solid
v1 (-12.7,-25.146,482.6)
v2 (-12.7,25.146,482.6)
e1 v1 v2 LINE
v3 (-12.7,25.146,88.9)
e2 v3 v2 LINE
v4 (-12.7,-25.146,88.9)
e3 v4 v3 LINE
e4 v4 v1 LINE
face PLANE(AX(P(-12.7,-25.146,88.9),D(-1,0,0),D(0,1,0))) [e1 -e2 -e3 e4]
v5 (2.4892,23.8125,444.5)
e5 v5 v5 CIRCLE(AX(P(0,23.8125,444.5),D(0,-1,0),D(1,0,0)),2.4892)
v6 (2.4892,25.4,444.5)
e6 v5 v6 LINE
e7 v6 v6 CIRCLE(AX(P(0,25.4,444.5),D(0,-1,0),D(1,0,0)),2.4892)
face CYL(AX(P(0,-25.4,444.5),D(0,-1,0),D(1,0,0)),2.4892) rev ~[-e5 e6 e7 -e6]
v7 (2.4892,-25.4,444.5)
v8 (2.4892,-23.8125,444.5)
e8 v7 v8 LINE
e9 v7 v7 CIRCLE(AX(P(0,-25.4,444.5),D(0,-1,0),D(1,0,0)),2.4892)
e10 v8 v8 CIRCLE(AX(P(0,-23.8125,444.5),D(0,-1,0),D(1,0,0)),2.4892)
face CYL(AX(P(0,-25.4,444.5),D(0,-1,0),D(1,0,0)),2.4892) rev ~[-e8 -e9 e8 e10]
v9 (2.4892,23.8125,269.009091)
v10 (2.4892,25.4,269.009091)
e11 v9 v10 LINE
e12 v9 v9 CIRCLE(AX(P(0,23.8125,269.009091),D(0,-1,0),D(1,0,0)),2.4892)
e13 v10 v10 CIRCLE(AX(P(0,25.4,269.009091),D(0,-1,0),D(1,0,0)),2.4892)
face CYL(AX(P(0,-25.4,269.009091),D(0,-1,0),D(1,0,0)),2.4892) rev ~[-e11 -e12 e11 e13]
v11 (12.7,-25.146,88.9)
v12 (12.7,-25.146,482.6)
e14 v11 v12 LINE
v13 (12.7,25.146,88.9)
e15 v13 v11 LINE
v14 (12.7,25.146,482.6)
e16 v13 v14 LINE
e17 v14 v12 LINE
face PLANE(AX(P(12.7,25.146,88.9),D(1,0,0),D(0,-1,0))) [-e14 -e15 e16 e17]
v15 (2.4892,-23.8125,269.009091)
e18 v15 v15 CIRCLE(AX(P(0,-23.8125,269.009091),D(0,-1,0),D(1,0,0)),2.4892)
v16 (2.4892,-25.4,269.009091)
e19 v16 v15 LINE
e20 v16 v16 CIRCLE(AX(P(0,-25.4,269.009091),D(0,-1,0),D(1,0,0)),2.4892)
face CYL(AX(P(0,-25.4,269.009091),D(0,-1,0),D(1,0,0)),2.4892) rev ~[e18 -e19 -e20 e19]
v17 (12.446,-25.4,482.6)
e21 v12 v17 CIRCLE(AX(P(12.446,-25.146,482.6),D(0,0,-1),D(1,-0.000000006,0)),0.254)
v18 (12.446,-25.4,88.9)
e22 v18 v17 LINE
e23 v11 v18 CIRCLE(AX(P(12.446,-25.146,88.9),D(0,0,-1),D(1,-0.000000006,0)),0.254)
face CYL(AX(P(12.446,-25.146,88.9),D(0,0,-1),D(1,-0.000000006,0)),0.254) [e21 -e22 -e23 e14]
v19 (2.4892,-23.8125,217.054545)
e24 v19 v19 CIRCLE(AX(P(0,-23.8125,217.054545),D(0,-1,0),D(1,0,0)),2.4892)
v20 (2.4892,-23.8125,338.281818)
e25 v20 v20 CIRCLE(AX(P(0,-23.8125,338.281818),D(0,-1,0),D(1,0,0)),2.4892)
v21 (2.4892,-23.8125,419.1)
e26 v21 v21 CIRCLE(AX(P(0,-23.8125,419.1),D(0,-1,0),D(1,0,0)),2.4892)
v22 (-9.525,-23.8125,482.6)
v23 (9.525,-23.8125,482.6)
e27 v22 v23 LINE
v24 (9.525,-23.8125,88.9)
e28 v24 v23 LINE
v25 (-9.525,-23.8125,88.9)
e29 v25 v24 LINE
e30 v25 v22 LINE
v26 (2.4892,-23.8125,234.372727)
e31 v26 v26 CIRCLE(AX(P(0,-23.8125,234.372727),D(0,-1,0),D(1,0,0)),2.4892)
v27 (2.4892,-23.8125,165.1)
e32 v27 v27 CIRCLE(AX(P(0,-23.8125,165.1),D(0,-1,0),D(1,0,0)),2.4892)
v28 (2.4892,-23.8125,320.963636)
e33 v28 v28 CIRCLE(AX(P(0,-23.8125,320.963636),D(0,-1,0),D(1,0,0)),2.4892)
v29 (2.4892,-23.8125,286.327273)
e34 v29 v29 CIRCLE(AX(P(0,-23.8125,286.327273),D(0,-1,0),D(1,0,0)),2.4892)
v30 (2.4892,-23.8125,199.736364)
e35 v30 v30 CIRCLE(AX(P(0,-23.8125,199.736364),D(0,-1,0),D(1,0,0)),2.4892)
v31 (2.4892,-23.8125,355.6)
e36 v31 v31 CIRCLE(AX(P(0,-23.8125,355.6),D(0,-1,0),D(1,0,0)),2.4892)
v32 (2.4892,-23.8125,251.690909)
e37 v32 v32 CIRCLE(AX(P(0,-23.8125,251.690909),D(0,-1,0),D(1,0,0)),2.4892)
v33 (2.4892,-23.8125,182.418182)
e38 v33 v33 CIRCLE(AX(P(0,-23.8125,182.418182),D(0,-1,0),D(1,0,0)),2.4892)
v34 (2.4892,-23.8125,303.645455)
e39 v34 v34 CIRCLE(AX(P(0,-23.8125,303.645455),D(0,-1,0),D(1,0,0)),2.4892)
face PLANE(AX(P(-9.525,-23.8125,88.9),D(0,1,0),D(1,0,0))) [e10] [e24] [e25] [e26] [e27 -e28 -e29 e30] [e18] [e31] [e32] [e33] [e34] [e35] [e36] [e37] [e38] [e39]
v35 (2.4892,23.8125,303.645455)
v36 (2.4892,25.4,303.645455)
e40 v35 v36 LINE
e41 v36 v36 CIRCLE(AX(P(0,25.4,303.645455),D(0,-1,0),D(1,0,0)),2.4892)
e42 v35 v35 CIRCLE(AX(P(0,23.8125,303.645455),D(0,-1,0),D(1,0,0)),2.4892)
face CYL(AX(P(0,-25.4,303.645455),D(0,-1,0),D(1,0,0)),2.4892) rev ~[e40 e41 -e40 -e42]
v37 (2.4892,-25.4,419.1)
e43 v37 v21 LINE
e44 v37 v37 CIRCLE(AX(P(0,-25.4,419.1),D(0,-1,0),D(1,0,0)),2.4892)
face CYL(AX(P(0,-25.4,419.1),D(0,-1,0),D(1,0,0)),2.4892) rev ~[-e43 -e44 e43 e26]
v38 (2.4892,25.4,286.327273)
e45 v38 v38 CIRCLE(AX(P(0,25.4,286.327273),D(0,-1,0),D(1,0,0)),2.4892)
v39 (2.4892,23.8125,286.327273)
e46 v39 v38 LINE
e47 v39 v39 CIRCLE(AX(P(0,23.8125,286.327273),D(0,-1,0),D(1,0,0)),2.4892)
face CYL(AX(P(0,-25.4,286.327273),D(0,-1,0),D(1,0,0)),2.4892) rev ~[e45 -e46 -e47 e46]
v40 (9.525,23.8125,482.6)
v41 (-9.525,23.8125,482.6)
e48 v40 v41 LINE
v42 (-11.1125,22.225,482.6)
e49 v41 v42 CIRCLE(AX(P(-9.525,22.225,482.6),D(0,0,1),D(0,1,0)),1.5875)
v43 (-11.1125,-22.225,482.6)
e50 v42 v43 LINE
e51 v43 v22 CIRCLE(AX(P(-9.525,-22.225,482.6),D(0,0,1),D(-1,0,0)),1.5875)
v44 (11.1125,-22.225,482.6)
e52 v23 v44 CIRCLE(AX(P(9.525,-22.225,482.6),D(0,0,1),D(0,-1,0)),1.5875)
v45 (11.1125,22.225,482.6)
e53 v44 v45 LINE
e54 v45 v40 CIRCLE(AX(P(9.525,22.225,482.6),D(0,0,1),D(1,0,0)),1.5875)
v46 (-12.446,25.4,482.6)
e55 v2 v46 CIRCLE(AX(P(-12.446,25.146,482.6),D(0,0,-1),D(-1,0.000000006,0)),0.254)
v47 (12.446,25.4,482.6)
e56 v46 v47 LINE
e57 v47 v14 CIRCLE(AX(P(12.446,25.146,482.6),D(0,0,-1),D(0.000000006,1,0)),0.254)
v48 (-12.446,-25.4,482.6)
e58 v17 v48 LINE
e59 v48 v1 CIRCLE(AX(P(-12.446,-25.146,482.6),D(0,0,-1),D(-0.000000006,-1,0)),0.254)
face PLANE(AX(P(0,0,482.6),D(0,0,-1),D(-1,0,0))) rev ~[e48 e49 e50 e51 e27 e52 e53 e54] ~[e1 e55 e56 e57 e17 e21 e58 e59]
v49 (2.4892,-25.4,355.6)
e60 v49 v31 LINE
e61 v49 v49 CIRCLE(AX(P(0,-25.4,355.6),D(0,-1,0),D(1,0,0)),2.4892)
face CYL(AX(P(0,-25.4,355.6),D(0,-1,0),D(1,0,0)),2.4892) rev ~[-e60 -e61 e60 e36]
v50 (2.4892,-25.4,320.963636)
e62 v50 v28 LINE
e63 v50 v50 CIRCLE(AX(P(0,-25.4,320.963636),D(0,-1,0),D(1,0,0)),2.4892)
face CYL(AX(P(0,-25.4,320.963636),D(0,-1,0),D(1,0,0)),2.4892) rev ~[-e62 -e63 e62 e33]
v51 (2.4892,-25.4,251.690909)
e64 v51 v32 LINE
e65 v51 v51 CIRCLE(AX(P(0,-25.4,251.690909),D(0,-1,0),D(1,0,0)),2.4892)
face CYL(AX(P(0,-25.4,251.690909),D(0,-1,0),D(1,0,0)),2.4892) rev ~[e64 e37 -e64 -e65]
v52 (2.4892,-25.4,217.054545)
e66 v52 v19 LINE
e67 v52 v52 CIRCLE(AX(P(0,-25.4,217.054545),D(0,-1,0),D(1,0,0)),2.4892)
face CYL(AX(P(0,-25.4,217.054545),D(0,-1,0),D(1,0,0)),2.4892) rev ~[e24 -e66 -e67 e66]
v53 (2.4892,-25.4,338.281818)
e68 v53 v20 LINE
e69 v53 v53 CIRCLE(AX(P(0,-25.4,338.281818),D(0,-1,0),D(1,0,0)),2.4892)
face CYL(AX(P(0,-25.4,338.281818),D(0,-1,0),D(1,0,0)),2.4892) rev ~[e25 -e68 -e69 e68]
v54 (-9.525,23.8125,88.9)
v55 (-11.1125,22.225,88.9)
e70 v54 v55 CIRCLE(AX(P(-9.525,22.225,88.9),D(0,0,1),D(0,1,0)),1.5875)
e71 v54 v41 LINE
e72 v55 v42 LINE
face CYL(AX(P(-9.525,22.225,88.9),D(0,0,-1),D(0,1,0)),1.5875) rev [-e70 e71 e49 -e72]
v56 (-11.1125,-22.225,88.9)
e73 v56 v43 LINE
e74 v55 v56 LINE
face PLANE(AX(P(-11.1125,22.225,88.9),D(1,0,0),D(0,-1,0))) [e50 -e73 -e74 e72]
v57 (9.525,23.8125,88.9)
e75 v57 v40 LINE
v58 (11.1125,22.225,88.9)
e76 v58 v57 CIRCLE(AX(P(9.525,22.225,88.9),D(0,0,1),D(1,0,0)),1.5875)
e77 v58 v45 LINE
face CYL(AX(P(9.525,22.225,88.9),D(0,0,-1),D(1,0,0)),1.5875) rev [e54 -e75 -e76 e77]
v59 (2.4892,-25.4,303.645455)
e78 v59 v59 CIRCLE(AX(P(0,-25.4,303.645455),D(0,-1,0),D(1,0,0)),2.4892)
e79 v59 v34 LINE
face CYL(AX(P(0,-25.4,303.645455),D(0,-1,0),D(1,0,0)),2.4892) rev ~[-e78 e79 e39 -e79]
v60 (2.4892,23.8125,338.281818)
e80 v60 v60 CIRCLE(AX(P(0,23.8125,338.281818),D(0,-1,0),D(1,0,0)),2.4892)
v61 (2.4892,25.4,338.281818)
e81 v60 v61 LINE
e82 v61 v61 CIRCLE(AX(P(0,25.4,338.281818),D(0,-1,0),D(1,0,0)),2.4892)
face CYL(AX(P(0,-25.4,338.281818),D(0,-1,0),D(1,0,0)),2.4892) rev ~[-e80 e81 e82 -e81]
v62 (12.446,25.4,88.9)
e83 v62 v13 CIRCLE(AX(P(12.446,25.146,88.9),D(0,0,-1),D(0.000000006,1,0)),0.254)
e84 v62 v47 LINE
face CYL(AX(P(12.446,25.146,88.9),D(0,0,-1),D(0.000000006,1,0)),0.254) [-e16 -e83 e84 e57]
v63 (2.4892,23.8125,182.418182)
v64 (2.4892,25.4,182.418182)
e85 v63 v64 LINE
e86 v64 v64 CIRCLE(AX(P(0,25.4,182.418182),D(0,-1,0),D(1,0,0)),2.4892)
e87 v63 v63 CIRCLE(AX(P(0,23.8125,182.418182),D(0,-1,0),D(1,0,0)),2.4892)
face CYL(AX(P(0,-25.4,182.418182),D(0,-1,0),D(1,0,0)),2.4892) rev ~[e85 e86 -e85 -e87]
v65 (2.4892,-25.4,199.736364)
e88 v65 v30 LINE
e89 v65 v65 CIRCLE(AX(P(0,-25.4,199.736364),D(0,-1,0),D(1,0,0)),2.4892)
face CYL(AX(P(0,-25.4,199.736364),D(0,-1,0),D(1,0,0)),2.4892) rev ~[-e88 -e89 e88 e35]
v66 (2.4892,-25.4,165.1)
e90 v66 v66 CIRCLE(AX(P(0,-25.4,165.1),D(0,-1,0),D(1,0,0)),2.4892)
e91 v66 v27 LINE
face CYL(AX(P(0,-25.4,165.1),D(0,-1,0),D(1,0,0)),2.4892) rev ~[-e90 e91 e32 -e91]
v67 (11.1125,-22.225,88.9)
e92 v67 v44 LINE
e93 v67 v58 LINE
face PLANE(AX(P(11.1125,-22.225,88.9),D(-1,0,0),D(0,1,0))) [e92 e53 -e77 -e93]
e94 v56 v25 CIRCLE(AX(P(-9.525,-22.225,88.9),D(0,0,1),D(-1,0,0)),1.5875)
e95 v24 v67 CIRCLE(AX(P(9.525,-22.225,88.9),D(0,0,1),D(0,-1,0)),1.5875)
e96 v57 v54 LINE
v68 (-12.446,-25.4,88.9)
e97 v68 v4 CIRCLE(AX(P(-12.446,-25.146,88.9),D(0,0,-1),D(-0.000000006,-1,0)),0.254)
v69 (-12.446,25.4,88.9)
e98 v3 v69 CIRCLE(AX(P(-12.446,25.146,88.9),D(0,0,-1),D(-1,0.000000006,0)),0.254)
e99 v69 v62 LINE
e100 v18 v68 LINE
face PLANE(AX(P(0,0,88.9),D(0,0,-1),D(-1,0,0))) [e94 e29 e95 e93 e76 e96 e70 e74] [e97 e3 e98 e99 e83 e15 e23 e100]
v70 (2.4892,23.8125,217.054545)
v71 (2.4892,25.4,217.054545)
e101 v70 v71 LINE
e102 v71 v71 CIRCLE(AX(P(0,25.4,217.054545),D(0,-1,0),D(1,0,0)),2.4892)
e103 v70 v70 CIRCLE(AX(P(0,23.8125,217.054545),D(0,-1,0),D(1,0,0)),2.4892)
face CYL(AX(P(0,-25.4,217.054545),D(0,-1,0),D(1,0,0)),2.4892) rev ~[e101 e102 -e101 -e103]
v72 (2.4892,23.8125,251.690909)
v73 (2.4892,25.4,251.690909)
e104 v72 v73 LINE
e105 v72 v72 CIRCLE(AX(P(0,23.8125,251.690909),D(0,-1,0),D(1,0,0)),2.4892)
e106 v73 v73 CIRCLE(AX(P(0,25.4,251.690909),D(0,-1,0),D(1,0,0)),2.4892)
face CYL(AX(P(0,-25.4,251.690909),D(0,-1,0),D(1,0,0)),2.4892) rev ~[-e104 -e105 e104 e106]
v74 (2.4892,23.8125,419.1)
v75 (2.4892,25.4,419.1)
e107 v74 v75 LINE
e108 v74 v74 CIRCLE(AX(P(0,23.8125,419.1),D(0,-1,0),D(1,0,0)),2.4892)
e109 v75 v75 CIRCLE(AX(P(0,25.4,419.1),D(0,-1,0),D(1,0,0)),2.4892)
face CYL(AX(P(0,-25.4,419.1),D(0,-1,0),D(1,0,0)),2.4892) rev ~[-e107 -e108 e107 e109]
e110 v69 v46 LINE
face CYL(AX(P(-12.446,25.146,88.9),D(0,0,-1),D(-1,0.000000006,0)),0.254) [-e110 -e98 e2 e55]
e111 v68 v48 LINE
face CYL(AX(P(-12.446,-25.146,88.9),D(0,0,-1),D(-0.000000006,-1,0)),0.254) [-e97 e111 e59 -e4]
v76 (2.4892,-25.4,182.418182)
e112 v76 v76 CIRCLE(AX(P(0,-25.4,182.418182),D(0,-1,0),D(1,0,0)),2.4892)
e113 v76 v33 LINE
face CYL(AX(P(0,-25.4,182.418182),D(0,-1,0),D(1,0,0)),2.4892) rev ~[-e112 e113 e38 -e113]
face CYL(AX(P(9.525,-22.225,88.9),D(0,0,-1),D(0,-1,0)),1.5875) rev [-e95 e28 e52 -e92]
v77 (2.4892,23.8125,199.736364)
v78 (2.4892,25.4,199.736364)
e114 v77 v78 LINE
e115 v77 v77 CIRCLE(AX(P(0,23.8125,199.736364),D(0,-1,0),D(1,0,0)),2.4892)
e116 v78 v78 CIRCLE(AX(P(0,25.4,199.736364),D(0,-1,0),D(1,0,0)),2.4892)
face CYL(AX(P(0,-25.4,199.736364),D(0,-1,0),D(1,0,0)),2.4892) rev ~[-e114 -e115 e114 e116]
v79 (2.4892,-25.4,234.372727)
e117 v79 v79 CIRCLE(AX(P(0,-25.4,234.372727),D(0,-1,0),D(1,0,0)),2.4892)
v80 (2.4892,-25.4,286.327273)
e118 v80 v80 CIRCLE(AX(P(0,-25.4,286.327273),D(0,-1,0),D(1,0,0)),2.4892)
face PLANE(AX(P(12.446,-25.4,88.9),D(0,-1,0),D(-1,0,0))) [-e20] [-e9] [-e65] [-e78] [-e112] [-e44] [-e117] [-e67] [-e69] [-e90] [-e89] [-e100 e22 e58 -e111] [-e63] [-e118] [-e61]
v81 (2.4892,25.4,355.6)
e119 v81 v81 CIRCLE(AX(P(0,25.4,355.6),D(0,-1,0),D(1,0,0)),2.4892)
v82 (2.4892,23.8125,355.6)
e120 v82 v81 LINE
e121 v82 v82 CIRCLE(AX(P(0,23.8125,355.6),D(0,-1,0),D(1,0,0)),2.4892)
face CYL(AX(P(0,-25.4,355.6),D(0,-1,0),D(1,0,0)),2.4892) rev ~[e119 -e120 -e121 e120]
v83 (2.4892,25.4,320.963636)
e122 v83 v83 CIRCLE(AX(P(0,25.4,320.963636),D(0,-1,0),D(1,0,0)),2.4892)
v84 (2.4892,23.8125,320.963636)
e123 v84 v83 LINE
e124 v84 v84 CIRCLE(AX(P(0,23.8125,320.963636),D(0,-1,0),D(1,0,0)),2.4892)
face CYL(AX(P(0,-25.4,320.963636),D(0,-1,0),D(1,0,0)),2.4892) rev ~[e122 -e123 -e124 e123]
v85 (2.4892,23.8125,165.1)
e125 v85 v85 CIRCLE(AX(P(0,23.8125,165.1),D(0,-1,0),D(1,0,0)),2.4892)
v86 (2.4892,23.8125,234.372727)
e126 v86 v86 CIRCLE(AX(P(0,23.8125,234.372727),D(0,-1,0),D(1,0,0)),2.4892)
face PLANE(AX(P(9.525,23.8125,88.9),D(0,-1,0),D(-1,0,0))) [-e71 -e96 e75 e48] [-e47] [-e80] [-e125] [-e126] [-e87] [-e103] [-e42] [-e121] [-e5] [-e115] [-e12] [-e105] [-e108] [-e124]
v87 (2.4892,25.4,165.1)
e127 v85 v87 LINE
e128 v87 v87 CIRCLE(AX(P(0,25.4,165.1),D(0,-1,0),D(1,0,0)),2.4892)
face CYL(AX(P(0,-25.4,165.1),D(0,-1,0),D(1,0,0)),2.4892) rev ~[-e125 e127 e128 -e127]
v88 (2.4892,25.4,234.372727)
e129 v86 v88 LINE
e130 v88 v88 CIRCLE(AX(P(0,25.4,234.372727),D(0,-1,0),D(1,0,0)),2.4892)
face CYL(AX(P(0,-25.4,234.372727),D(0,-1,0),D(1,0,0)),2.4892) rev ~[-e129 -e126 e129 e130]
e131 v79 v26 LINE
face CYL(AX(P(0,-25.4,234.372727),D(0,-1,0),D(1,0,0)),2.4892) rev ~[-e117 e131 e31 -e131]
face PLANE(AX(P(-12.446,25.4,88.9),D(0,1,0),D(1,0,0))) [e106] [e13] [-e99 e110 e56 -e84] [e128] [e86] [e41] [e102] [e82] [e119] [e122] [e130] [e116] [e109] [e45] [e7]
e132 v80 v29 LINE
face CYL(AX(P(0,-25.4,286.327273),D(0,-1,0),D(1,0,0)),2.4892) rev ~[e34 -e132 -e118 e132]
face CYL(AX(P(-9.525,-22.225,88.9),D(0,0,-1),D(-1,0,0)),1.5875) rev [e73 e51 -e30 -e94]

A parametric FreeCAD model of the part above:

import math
import FreeCAD as App
import Part
import Sketcher

V = App.Vector
Q = App.Units.Quantity

doc = App.newDocument("Part")
body = doc.addObject("PartDesign::Body", "Body")

# Sketch on XY plane
sketch1 = doc.addObject("Sketcher::SketchObject", "Sketch")
body.addObject(sketch1)
sketch1.AttachmentSupport = (doc.XY_Plane, [""])
sketch1.MapMode = "FlatFace"
sketch1.AttachmentOffset = App.Placement(V(0, 0, 3.5 * 25.4), App.Rotation())
sketch1.addGeometry([
    Part.LineSegment(V(12.7, 25.15, 0), V(12.7, -25.15, 0)),  # 0
    Part.ArcOfCircle(Part.Circle(V(12.45, -25.15, 0), V(0, 0, 1), 0.25), math.radians(-90), math.radians(0)),  # 1
    Part.LineSegment(V(12.45, -25.4, 0), V(-12.45, -25.4, 0)),  # 2
    Part.ArcOfCircle(Part.Circle(V(-12.45, -25.15, 0), V(0, 0, 1), 0.25), math.radians(-180), math.radians(-90)),  # 3
    Part.LineSegment(V(-12.7, -25.15, 0), V(-12.7, 25.15, 0)),  # 4
    Part.ArcOfCircle(Part.Circle(V(-12.45, 25.15, 0), V(0, 0, 1), 0.25), math.radians(90), math.radians(180)),  # 5
    Part.LineSegment(V(-12.45, 25.4, 0), V(12.45, 25.4, 0)),  # 6
    Part.ArcOfCircle(Part.Circle(V(12.45, 25.15, 0), V(0, 0, 1), 0.25), math.radians(0), math.radians(90)),  # 7
    Part.ArcOfCircle(Part.Circle(V(9.53, -22.23, 0), V(0, 0, 1), 1.59), math.radians(-90), math.radians(0)),  # 8
    Part.LineSegment(V(11.11, -22.23, 0), V(11.11, 22.23, 0)),  # 9
    Part.ArcOfCircle(Part.Circle(V(9.53, 22.23, 0), V(0, 0, 1), 1.59), math.radians(0), math.radians(90)),  # 10
    Part.LineSegment(V(9.53, 23.81, 0), V(-9.53, 23.81, 0)),  # 11
    Part.ArcOfCircle(Part.Circle(V(-9.53, 22.23, 0), V(0, 0, 1), 1.59), math.radians(90), math.radians(180)),  # 12
    Part.LineSegment(V(-11.11, 22.23, 0), V(-11.11, -22.23, 0)),  # 13
    Part.ArcOfCircle(Part.Circle(V(-9.53, -22.23, 0), V(0, 0, 1), 1.59), math.radians(180), math.radians(270)),  # 14
    Part.LineSegment(V(-9.53, -23.81, 0), V(9.53, -23.81, 0)),  # 15
], False)
sketch1.addConstraint([
    Sketcher.Constraint("Tangent", 0, 2, 1, 2),
    Sketcher.Constraint("Tangent", 1, 1, 2, 1),
    Sketcher.Constraint("Tangent", 2, 2, 3, 2),
    Sketcher.Constraint("Tangent", 3, 1, 4, 1),
    Sketcher.Constraint("Tangent", 4, 2, 5, 2),
    Sketcher.Constraint("Tangent", 5, 1, 6, 1),
    Sketcher.Constraint("Tangent", 6, 2, 7, 2),
    Sketcher.Constraint("Tangent", 7, 1, 0, 1),
    Sketcher.Constraint("Tangent", 8, 2, 9, 1),
    Sketcher.Constraint("Tangent", 9, 2, 10, 1),
    Sketcher.Constraint("Tangent", 10, 2, 11, 1),
    Sketcher.Constraint("Tangent", 11, 2, 12, 1),
    Sketcher.Constraint("Tangent", 12, 2, 13, 1),
    Sketcher.Constraint("Tangent", 13, 2, 14, 1),
    Sketcher.Constraint("Tangent", 14, 2, 15, 1),
    Sketcher.Constraint("Tangent", 15, 2, 8, 1),
    Sketcher.Constraint("Vertical", 0),
    Sketcher.Constraint("Horizontal", 2),
    Sketcher.Constraint("Vertical", 4),
    Sketcher.Constraint("Horizontal", 6),
    Sketcher.Constraint("Vertical", 9),
    Sketcher.Constraint("Horizontal", 11),
    Sketcher.Constraint("Vertical", 13),
    Sketcher.Constraint("Horizontal", 15),
    Sketcher.Constraint("Equal", 1, 3),
    Sketcher.Constraint("Equal", 3, 5),
    Sketcher.Constraint("Equal", 5, 7),
    Sketcher.Constraint("Equal", 8, 10),
    Sketcher.Constraint("Equal", 10, 12),
    Sketcher.Constraint("Equal", 12, 14),
    Sketcher.Constraint("Symmetric", 1, 3, 5, 3, -1, 1),
    Sketcher.Constraint("Symmetric", 8, 3, 12, 3, -1, 1),
    Sketcher.Constraint("Radius", 1, Q("0.01 in")),
    Sketcher.Constraint("DistanceY", 1, 1, -1, 1, Q("1 in")),
    Sketcher.Constraint("Radius", 8, Q("0.0625 in")),
    Sketcher.Constraint("DistanceX", 2, 2, 2, 1, Q("0.98 in")),
    Sketcher.Constraint("DistanceX", 11, 2, 11, 1, Q("0.75 in")),
    Sketcher.Constraint("DistanceY", 9, 1, 9, 2, Q("1.75 in")),
])
pad1 = doc.addObject("PartDesign::Pad", "Pad")
body.addObject(pad1)
pad1.Profile = sketch1
pad1.Length = Q("15.5 in")

# Sketch on XZ plane
sketch2 = doc.addObject("Sketcher::SketchObject", "Sketch001")
body.addObject(sketch2)
sketch2.AttachmentSupport = (doc.XZ_Plane, [""])
sketch2.MapMode = "FlatFace"
sketch2.AttachmentOffset = App.Placement(V(0, 0, 1 * 25.4), App.Rotation())
sketch2.addGeometry([
    Part.Circle(V(0, 165.1, 0), V(0, 0, 1), 2.5),  # 0
    Part.Circle(V(0, 182.4, 0), V(0, 0, 1), 2.5),  # 1
    Part.Circle(V(0, 199.7, 0), V(0, 0, 1), 2.5),  # 2
    Part.Circle(V(0, 217.1, 0), V(0, 0, 1), 2.5),  # 3
    Part.Circle(V(0, 234.4, 0), V(0, 0, 1), 2.5),  # 4
    Part.Circle(V(0, 251.7, 0), V(0, 0, 1), 2.5),  # 5
    Part.Circle(V(0, 269, 0), V(0, 0, 1), 2.5),  # 6
    Part.Circle(V(0, 286.3, 0), V(0, 0, 1), 2.5),  # 7
    Part.Circle(V(0, 303.6, 0), V(0, 0, 1), 2.5),  # 8
    Part.Circle(V(0, 321, 0), V(0, 0, 1), 2.5),  # 9
    Part.Circle(V(0, 338.3, 0), V(0, 0, 1), 2.5),  # 10
    Part.Circle(V(0, 419.1, 0), V(0, 0, 1), 2.5),  # 11
    Part.Circle(V(0, 444.5, 0), V(0, 0, 1), 2.5),  # 12
    Part.Circle(V(0, 355.6, 0), V(0, 0, 1), 2.5),  # 13
], False)
sketch2.addConstraint([
    Sketcher.Constraint("Equal", 0, 1),
    Sketcher.Constraint("Equal", 1, 2),
    Sketcher.Constraint("Equal", 2, 3),
    Sketcher.Constraint("Equal", 3, 4),
    Sketcher.Constraint("Equal", 4, 5),
    Sketcher.Constraint("Equal", 5, 6),
    Sketcher.Constraint("Equal", 6, 7),
    Sketcher.Constraint("Equal", 7, 8),
    Sketcher.Constraint("Equal", 8, 9),
    Sketcher.Constraint("Equal", 9, 10),
    Sketcher.Constraint("Equal", 10, 11),
    Sketcher.Constraint("Equal", 11, 12),
    Sketcher.Constraint("Equal", 12, 13),
    Sketcher.Constraint("PointOnObject", 0, 3, -2),
    Sketcher.Constraint("PointOnObject", 1, 3, -2),
    Sketcher.Constraint("PointOnObject", 2, 3, -2),
    Sketcher.Constraint("PointOnObject", 3, 3, -2),
    Sketcher.Constraint("PointOnObject", 4, 3, -2),
    Sketcher.Constraint("PointOnObject", 5, 3, -2),
    Sketcher.Constraint("PointOnObject", 6, 3, -2),
    Sketcher.Constraint("PointOnObject", 7, 3, -2),
    Sketcher.Constraint("PointOnObject", 8, 3, -2),
    Sketcher.Constraint("PointOnObject", 9, 3, -2),
    Sketcher.Constraint("PointOnObject", 10, 3, -2),
    Sketcher.Constraint("PointOnObject", 11, 3, -2),
    Sketcher.Constraint("PointOnObject", 12, 3, -2),
    Sketcher.Constraint("PointOnObject", 13, 3, -2),
    Sketcher.Constraint("Diameter", 0, Q("0.196 in")),
    Sketcher.Constraint("DistanceY", -1, 1, 13, 3, Q("14 in")),
    Sketcher.Constraint("DistanceY", 11, 3, 12, 3, Q("1 in")),
    Sketcher.Constraint("DistanceY", -1, 1, 0, 3, Q("6.5 in")),
    Sketcher.Constraint("DistanceY", -1, 1, 11, 3, Q("16.5 in")),
    Sketcher.Constraint("DistanceY", -1, 1, 1, 3, 182.418182),
    Sketcher.Constraint("DistanceY", -1, 1, 5, 3, 251.690909),
    Sketcher.Constraint("DistanceY", -1, 1, 6, 3, 269.009091),
    Sketcher.Constraint("DistanceY", -1, 1, 10, 3, 338.281818),
    Sketcher.Constraint("DistanceY", 1, 3, 2, 3, 17.318182),
    Sketcher.Constraint("DistanceY", 2, 3, 3, 3, 17.318182),
    Sketcher.Constraint("DistanceY", 3, 3, 4, 3, 17.318182),
    Sketcher.Constraint("DistanceY", 6, 3, 7, 3, 17.318182),
    Sketcher.Constraint("DistanceY", 7, 3, 8, 3, 17.318182),
    Sketcher.Constraint("DistanceY", 8, 3, 9, 3, 17.318182),
])
pocket1 = doc.addObject("PartDesign::Pocket", "Pocket")
body.addObject(pocket1)
pocket1.Profile = sketch2
pocket1.Type = "ThroughAll"
pocket1.Midplane = True

doc.recompute()
